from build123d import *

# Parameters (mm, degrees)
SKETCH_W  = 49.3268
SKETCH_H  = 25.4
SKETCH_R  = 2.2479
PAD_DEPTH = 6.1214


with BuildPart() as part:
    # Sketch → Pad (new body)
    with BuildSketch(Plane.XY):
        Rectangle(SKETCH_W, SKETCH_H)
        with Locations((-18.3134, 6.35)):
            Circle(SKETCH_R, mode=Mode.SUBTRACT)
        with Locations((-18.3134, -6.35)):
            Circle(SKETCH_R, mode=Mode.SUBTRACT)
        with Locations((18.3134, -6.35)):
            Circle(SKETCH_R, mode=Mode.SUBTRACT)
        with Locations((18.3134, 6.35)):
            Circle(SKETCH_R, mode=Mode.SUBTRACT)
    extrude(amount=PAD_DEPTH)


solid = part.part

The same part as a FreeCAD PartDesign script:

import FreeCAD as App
import Part
import Sketcher

V = App.Vector
Q = App.Units.Quantity


def add_polygon(sketch, points):
    """Adds a closed chain of lines whose ends are joined by coincident constraints."""
    first, n = sketch.GeometryCount, len(points)
    for a, b in zip(points, points[1:] + points[:1]):
        sketch.addGeometry(Part.LineSegment(App.Vector(*a, 0), App.Vector(*b, 0)), False)
    for i in range(n):
        sketch.addConstraint(Sketcher.Constraint("Coincident", first + i, 2, first + (i + 1) % n, 1))

doc = App.newDocument("Part")
body = doc.addObject("PartDesign::Body", "Body")

# Sketch on XY plane
sketch1 = body.newObject("Sketcher::SketchObject", "Sketch")
sketch1.AttachmentSupport = (doc.getObject("XY_Plane"), [""])
sketch1.MapMode = "FlatFace"
add_polygon(sketch1, [(-24.7, 12.7), (-24.7, -12.7), (24.7, -12.7), (24.7, 12.7)])  # lines 0-3
sketch1.addGeometry(Part.Circle(V(-18.3, -6.3, 0), V(0, 0, 1), 2.2), False)  # 4
sketch1.addGeometry(Part.Circle(V(18.3, -6.3, 0), V(0, 0, 1), 2.2), False)  # 5
sketch1.addGeometry(Part.Circle(V(-18.3, 6.3, 0), V(0, 0, 1), 2.2), False)  # 6
sketch1.addGeometry(Part.Circle(V(18.3, 6.3, 0), V(0, 0, 1), 2.2), False)  # 7
sketch1.addConstraint([
    Sketcher.Constraint("Vertical", 0),
    Sketcher.Constraint("Horizontal", 1),
    Sketcher.Constraint("Vertical", 2),
    Sketcher.Constraint("Horizontal", 3),
    Sketcher.Constraint("Equal", 4, 5),
    Sketcher.Constraint("Equal", 5, 6),
    Sketcher.Constraint("Equal", 6, 7),
    Sketcher.Constraint("Symmetric", 5, 3, 6, 3, -1, 1),
    Sketcher.Constraint("Symmetric", 4, 3, 7, 3, -1, 1),
    Sketcher.Constraint("Symmetric", 0, 2, 2, 2, -1, 1),
    Sketcher.Constraint("Symmetric", 4, 3, 5, 3, -2),
    Sketcher.Constraint("DistanceY", 0, 2, 0, 1, Q("1 in")),
    Sketcher.Constraint("Diameter", 4, Q("0.177 in")),
    Sketcher.Constraint("DistanceY", 4, 3, 6, 3, Q("0.5 in")),
    Sketcher.Constraint("DistanceX", 1, 1, 1, 2, Q("1.942 in")),
    Sketcher.Constraint("DistanceX", 0, 2, 4, 3, Q("0.25 in")),
])
pad1 = body.newObject("PartDesign::Pad", "Pad")
pad1.Profile = sketch1
pad1.Length = Q("0.241 in")

doc.recompute()
